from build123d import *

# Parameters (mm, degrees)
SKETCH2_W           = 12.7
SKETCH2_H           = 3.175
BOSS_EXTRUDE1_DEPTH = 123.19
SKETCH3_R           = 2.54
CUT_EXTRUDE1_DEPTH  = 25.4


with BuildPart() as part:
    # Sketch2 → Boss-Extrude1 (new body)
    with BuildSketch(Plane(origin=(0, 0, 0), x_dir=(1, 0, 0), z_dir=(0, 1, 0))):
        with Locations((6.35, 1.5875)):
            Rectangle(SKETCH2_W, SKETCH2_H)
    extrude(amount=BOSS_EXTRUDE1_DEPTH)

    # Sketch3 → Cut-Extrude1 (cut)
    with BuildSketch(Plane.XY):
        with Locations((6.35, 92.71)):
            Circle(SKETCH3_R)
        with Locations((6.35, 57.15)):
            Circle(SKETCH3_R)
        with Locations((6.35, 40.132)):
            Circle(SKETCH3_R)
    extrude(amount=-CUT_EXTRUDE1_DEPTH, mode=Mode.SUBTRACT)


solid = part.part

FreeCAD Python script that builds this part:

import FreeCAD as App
import Part
import Sketcher
from FreeCAD import Vector
Q = App.Units.Quantity

doc = App.newDocument("Part")
params = doc.addObject("Spreadsheet::Sheet", "Params")
for row, (alias, value) in enumerate([
    ("sketch1_width", "0.5 in"),
    ("sketch1_height", "0.125 in"),
    ("pad1_length", "4.85 in"),
    ("sketch2_diameter", "0.2 in"),
    ("pocket1_length", "1 in"),
], start=1):
    params.set(f"A{row}", alias)
    params.set(f"B{row}", "=" + value)
    params.setAlias(f"B{row}", alias)

body = doc.addObject("PartDesign::Body", "Body")

# Sketch on XZ plane
sketch1 = body.newObject("Sketcher::SketchObject", "Sketch")
sketch1.AttachmentSupport = (doc.getObject("XZ_Plane"), [""])
sketch1.MapMode = "FlatFace"
sketch1.addGeometry([
    Part.LineSegment(Vector(0, -3.2, 0), Vector(0, 0, 0)),
    Part.LineSegment(Vector(0, 0, 0), Vector(12.7, 0, 0)),
    Part.LineSegment(Vector(12.7, 0, 0), Vector(12.7, -3.2, 0)),
    Part.LineSegment(Vector(12.7, -3.2, 0), Vector(0, -3.2, 0)),
], False)
sketch1.addConstraint([
    Sketcher.Constraint("Coincident", 0, 2, 1, 1),
    Sketcher.Constraint("Coincident", 1, 2, 2, 1),
    Sketcher.Constraint("Coincident", 2, 2, 3, 1),
    Sketcher.Constraint("Coincident", 3, 2, 0, 1),
    Sketcher.Constraint("Vertical", 0),
    Sketcher.Constraint("Horizontal", 1),
    Sketcher.Constraint("Vertical", 2),
    Sketcher.Constraint("Horizontal", 3),
    Sketcher.Constraint("Coincident", 0, 2, -1, 1),
    Sketcher.Constraint("DistanceX", 1, 1, 1, 2, Q("0.5 in")),
    Sketcher.Constraint("DistanceY", 0, 1, 0, 2, Q("0.125 in")),
])
sketch1.setExpression("Constraints[9]", "Params.sketch1_width")
sketch1.setExpression("Constraints[10]", "Params.sketch1_height")
pad1 = body.newObject("PartDesign::Pad", "Pad")
pad1.Profile = sketch1
pad1.setExpression("Length", "Params.pad1_length")
pad1.Reversed = True

# Sketch on XY plane
sketch2 = body.newObject("Sketcher::SketchObject", "Sketch001")
sketch2.AttachmentSupport = (doc.getObject("XY_Plane"), [""])
sketch2.MapMode = "FlatFace"
sketch2.addGeometry([
    Part.Circle(Vector(6.3, 92.7, 0), Vector(0, 0, 1), 2.5),
    Part.Circle(Vector(6.3, 57.1, 0), Vector(0, 0, 1), 2.5),
    Part.Circle(Vector(6.3, 40.1, 0), Vector(0, 0, 1), 2.5),
], False)
sketch2.addConstraint([
    Sketcher.Constraint("Equal", 0, 1),
    Sketcher.Constraint("Equal", 1, 2),
    Sketcher.Constraint("Vertical", 0, 3, 1, 3),
    Sketcher.Constraint("Vertical", 1, 3, 2, 3),
    Sketcher.Constraint("Diameter", 0, Q("0.2 in")),
    Sketcher.Constraint("DistanceY", 1, 3, 0, 3, Q("1.4 in")),
    Sketcher.Constraint("DistanceX", -1, 1, 0, 3, Q("0.25 in")),
    Sketcher.Constraint("DistanceY", -1, 1, 0, 3, Q("3.65 in")),
    Sketcher.Constraint("DistanceY", -1, 1, 2, 3, Q("1.58 in")),
])
sketch2.setExpression("Constraints[4]", "Params.sketch2_diameter")
pocket1 = body.newObject("PartDesign::Pocket", "Pocket")
pocket1.Profile = sketch2
pocket1.setExpression("Length", "Params.pocket1_length")

doc.recompute()
